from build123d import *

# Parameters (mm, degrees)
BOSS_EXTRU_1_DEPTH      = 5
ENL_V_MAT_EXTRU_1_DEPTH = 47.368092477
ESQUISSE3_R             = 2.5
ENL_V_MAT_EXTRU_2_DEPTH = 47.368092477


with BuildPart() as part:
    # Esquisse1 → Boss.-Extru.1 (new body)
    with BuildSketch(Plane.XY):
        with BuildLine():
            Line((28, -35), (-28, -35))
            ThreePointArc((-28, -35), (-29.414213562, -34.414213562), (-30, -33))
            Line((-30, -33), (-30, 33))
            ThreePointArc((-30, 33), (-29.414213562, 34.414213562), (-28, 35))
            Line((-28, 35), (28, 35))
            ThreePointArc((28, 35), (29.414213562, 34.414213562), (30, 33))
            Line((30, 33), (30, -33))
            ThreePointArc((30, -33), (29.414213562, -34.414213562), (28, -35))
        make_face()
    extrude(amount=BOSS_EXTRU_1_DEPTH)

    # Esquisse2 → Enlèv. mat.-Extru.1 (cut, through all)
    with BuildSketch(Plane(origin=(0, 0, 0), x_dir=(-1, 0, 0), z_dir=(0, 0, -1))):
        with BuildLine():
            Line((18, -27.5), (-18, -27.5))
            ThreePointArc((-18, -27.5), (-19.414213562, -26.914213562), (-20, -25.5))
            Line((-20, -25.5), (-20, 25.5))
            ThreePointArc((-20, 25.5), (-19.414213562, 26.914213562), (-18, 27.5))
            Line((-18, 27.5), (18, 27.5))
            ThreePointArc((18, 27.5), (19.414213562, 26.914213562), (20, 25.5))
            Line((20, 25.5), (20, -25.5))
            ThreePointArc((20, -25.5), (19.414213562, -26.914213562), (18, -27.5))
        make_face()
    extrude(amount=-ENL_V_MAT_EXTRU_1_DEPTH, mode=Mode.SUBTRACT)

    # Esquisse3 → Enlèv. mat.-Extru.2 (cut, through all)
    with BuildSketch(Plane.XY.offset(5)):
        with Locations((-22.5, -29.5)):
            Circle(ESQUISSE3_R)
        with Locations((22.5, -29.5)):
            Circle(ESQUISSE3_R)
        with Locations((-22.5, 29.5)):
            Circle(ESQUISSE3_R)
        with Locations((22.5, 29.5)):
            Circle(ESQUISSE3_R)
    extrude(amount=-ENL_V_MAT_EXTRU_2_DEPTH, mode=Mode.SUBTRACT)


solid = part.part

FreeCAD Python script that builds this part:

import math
import FreeCAD as App
import Part
import Sketcher

V = App.Vector
Q = App.Units.Quantity

doc = App.newDocument("Part")
body = doc.addObject("PartDesign::Body", "Body")

sketch1 = body.newObject("Sketcher::SketchObject", "Sketch")
sketch1.AttachmentSupport = (doc.getObject("XY_Plane"), [""])
sketch1.MapMode = "FlatFace"
sketch1.addGeometry([
    Part.LineSegment(V(-28, -35, 0), V(28, -35, 0)),
    Part.ArcOfCircle(Part.Circle(V(28, -33, 0), V(0, 0, 1), 2), math.radians(-90), math.radians(0)),
    Part.LineSegment(V(30, -33, 0), V(30, 33, 0)),
    Part.ArcOfCircle(Part.Circle(V(28, 33, 0), V(0, 0, 1), 2), math.radians(0), math.radians(90)),
    Part.LineSegment(V(28, 35, 0), V(-28, 35, 0)),
    Part.ArcOfCircle(Part.Circle(V(-28, 33, 0), V(0, 0, 1), 2), math.radians(90), math.radians(180)),
    Part.LineSegment(V(-30, 33, 0), V(-30, -33, 0)),
    Part.ArcOfCircle(Part.Circle(V(-28, -33, 0), V(0, 0, 1), 2), math.radians(-180), math.radians(-90)),
], False)
sketch1.addConstraint([
    Sketcher.Constraint("Tangent", 0, 2, 1, 1),
    Sketcher.Constraint("Tangent", 1, 2, 2, 1),
    Sketcher.Constraint("Tangent", 2, 2, 3, 1),
    Sketcher.Constraint("Tangent", 3, 2, 4, 1),
    Sketcher.Constraint("Tangent", 4, 2, 5, 1),
    Sketcher.Constraint("Tangent", 5, 2, 6, 1),
    Sketcher.Constraint("Tangent", 6, 2, 7, 1),
    Sketcher.Constraint("Tangent", 7, 2, 0, 1),
    Sketcher.Constraint("Horizontal", 0),
    Sketcher.Constraint("Vertical", 2),
    Sketcher.Constraint("Horizontal", 4),
    Sketcher.Constraint("Vertical", 6),
    Sketcher.Constraint("Equal", 1, 3),
    Sketcher.Constraint("Equal", 3, 5),
    Sketcher.Constraint("Equal", 5, 7),
    Sketcher.Constraint("Symmetric", 1, 3, 5, 3, -1, 1),
    Sketcher.Constraint("Radius", 1, Q("2 mm")),
    Sketcher.Constraint("DistanceX", 0, 1, 0, 2, Q("56 mm")),
    Sketcher.Constraint("DistanceY", 2, 1, 2, 2, Q("66 mm")),
])
pad1 = body.newObject("PartDesign::Pad", "Pad")
pad1.Profile = sketch1
pad1.Length = 5

sketch2 = body.newObject("Sketcher::SketchObject", "Sketch001")
sketch2.AttachmentSupport = (doc.getObject("XY_Plane"), [""])
sketch2.MapMode = "FlatFace"
sketch2.addGeometry([
    Part.LineSegment(V(18, -27.5, 0), V(-18, -27.5, 0)),
    Part.ArcOfCircle(Part.Circle(V(-18, -25.5, 0), V(0, 0, 1), 2), math.radians(-180), math.radians(-90)),
    Part.LineSegment(V(-20, -25.5, 0), V(-20, 25.5, 0)),
    Part.ArcOfCircle(Part.Circle(V(-18, 25.5, 0), V(0, 0, 1), 2), math.radians(90), math.radians(180)),
    Part.LineSegment(V(-18, 27.5, 0), V(18, 27.5, 0)),
    Part.ArcOfCircle(Part.Circle(V(18, 25.5, 0), V(0, 0, 1), 2), math.radians(0), math.radians(90)),
    Part.LineSegment(V(20, 25.5, 0), V(20, -25.5, 0)),
    Part.ArcOfCircle(Part.Circle(V(18, -25.5, 0), V(0, 0, 1), 2), math.radians(-90), math.radians(0)),
], False)
sketch2.addConstraint([
    Sketcher.Constraint("Tangent", 0, 2, 1, 2),
    Sketcher.Constraint("Tangent", 1, 1, 2, 1),
    Sketcher.Constraint("Tangent", 2, 2, 3, 2),
    Sketcher.Constraint("Tangent", 3, 1, 4, 1),
    Sketcher.Constraint("Tangent", 4, 2, 5, 2),
    Sketcher.Constraint("Tangent", 5, 1, 6, 1),
    Sketcher.Constraint("Tangent", 6, 2, 7, 2),
    Sketcher.Constraint("Tangent", 7, 1, 0, 1),
    Sketcher.Constraint("Horizontal", 0),
    Sketcher.Constraint("Vertical", 2),
    Sketcher.Constraint("Horizontal", 4),
    Sketcher.Constraint("Vertical", 6),
    Sketcher.Constraint("Equal", 1, 3),
    Sketcher.Constraint("Equal", 3, 5),
    Sketcher.Constraint("Equal", 5, 7),
    Sketcher.Constraint("Symmetric", 1, 3, 5, 3, -1, 1),
    Sketcher.Constraint("Radius", 1, Q("2 mm")),
    Sketcher.Constraint("DistanceX", 0, 2, 0, 1, Q("36 mm")),
    Sketcher.Constraint("DistanceY", 2, 1, 2, 2, Q("51 mm")),
])
pocket1 = body.newObject("PartDesign::Pocket", "Pocket")
pocket1.Profile = sketch2
pocket1.Type = "ThroughAll"
pocket1.Reversed = True

sketch3 = body.newObject("Sketcher::SketchObject", "Sketch002")
sketch3.AttachmentSupport = (doc.getObject("XY_Plane"), [""])
sketch3.MapMode = "FlatFace"
sketch3.AttachmentOffset = App.Placement(V(0, 0, 5), App.Rotation())
sketch3.addGeometry([
    Part.Circle(V(-22.5, -29.5, 0), V(0, 0, 1), 2.5),
    Part.Circle(V(22.5, -29.5, 0), V(0, 0, 1), 2.5),
    Part.Circle(V(-22.5, 29.5, 0), V(0, 0, 1), 2.5),
    Part.Circle(V(22.5, 29.5, 0), V(0, 0, 1), 2.5),
], False)
sketch3.addConstraint([
    Sketcher.Constraint("Equal", 0, 1),
    Sketcher.Constraint("Equal", 1, 2),
    Sketcher.Constraint("Equal", 2, 3),
    Sketcher.Constraint("Symmetric", 1, 3, 2, 3, -1, 1),
    Sketcher.Constraint("Symmetric", 0, 3, 3, 3, -1, 1),
    Sketcher.Constraint("Symmetric", 0, 3, 1, 3, -2),
    Sketcher.Constraint("Diameter", 0, Q("5 mm")),
    Sketcher.Constraint("DistanceX", 0, 3, 1, 3, Q("45 mm")),
    Sketcher.Constraint("DistanceY", 0, 3, 2, 3, Q("59 mm")),
])
pocket2 = body.newObject("PartDesign::Pocket", "Pocket001")
pocket2.Profile = sketch3
pocket2.Type = "ThroughAll"

doc.recompute()
